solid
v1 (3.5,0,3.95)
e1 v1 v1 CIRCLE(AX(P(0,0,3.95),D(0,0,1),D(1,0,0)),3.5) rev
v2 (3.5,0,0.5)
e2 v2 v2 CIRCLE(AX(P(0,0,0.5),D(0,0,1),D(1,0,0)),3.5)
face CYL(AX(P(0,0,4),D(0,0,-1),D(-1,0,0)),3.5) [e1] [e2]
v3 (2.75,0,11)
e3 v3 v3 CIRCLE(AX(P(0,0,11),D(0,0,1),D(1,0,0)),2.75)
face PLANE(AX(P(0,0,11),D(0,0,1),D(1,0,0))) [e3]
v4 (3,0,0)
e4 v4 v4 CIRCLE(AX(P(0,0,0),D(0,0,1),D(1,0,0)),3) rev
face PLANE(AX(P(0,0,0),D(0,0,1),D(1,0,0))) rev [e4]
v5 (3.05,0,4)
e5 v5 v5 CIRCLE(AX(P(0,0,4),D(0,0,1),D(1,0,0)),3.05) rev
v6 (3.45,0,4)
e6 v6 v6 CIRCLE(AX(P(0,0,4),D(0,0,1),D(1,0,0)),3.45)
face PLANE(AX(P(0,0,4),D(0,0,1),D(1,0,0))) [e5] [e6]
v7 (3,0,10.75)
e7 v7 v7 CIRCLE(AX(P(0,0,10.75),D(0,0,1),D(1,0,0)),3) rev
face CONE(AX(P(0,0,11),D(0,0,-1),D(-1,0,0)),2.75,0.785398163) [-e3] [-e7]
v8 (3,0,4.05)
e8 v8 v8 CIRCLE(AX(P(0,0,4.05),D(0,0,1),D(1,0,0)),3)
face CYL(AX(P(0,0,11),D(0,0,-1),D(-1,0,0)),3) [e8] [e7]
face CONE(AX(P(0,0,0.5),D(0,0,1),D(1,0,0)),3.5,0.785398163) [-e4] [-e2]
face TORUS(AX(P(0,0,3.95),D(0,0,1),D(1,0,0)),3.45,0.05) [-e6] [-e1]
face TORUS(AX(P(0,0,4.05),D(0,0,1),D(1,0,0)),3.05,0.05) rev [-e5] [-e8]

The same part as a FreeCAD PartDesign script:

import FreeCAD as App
import Part
import Sketcher


def edges_at(feature, points):
    """Names of the edges that pass closest to the given points."""
    edges = feature.Shape.Edges
    near = lambda p: min(range(len(edges)), key=lambda i: edges[i].distToShape(Part.Vertex(*p))[0])
    return sorted({f"Edge{near(p) + 1}" for p in points})

doc = App.newDocument("Part")
body = doc.addObject("PartDesign::Body", "Body")

# Sketch on XY plane
sketch1 = doc.addObject("Sketcher::SketchObject", "Sketch")
body.addObject(sketch1)
sketch1.AttachmentSupport = (doc.XY_Plane, [""])
sketch1.MapMode = "FlatFace"
sketch1.addGeometry(Part.Circle(App.Vector(0, 0, 0), App.Vector(0, 0, 1), 3.5), False)
sketch1.addConstraint(Sketcher.Constraint("Coincident", 0, 3, -1, 1))
sketch1.addConstraint(Sketcher.Constraint("Diameter", 0, 7.0))
pad1 = doc.addObject("PartDesign::Pad", "Pad")
body.addObject(pad1)
pad1.Profile = sketch1
pad1.Length = 4

# Sketch on XY plane
sketch2 = doc.addObject("Sketcher::SketchObject", "Sketch001")
body.addObject(sketch2)
sketch2.AttachmentSupport = (doc.XY_Plane, [""])
sketch2.MapMode = "FlatFace"
sketch2.AttachmentOffset = App.Placement(App.Vector(0, 0, 4), App.Rotation())
sketch2.addGeometry(Part.Circle(App.Vector(0, 0, 0), App.Vector(0, 0, 1), 3), False)
sketch2.addConstraint(Sketcher.Constraint("Coincident", 0, 3, -1, 1))
sketch2.addConstraint(Sketcher.Constraint("Diameter", 0, 6.0))
pad2 = doc.addObject("PartDesign::Pad", "Pad001")
body.addObject(pad2)
pad2.Profile = sketch2
pad2.Length = 7
doc.recompute()

chamfer = doc.addObject("PartDesign::Chamfer", "Chamfer")
body.addObject(chamfer)
chamfer.Base = (pad2, edges_at(pad2, [(-3, 0, 11)]))
chamfer.Size = 0.25
doc.recompute()

chamfer2 = doc.addObject("PartDesign::Chamfer", "Chamfer001")
body.addObject(chamfer2)
chamfer2.Base = (chamfer, edges_at(chamfer, [(-3.5, 0, 0)]))
chamfer2.Size = 0.5
doc.recompute()

fillet = doc.addObject("PartDesign::Fillet", "Fillet")
body.addObject(fillet)
fillet.Base = (chamfer2, edges_at(chamfer2, [(-3.5, 0, 4), (-3, 0, 4)]))
fillet.Radius = 0.05

doc.recompute()
